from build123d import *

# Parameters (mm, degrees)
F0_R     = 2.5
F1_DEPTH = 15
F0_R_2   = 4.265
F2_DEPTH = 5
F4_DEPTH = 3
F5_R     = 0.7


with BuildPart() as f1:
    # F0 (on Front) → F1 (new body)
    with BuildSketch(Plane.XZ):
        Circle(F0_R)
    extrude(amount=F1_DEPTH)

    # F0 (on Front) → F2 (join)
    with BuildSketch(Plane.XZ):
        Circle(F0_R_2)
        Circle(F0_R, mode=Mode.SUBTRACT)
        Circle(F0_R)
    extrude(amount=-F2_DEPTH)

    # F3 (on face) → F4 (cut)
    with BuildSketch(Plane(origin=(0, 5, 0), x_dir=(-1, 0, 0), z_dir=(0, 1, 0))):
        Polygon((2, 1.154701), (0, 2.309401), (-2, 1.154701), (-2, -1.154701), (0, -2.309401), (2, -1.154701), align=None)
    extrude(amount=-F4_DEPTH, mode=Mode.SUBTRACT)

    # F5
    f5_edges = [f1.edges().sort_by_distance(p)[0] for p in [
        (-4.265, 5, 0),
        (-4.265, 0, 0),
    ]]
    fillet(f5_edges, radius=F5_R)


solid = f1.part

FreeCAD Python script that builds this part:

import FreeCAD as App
import Part
import Sketcher
from FreeCAD import Vector
Q = App.Units.Quantity


def edges_at(feature, points):
    """Names of the edges that pass closest to the given points."""
    edges = feature.Shape.Edges
    near = lambda p: min(range(len(edges)), key=lambda i: edges[i].distToShape(Part.Vertex(*p))[0])
    return sorted({f"Edge{near(p) + 1}" for p in points})

doc = App.newDocument("Part")
params = doc.addObject("Spreadsheet::Sheet", "Params")
for row, (alias, value) in enumerate([
    ("sketch1_diameter", "5 mm"),
    ("pad1_length", "15 mm"),
    ("sketch2_diameter", "8.53 mm"),
    ("pad2_length", "5 mm"),
    ("pocket1_length", "3 mm"),
    ("fillet_radius", "0.7 mm"),
], start=1):
    params.set(f"A{row}", alias)
    params.set(f"B{row}", "=" + value)
    params.setAlias(f"B{row}", alias)

body = doc.addObject("PartDesign::Body", "Body")

# Sketch on XZ plane
sketch1 = body.newObject("Sketcher::SketchObject", "Sketch")
sketch1.AttachmentSupport = (doc.getObject("XZ_Plane"), [""])
sketch1.MapMode = "FlatFace"
sketch1.addGeometry(Part.Circle(Vector(0, 0, 0), Vector(0, 0, 1), 2.5), False)
sketch1.addConstraint(Sketcher.Constraint("Coincident", 0, 3, -1, 1))
sketch1.addConstraint(Sketcher.Constraint("Diameter", 0, 5.0))
sketch1.setExpression("Constraints[1]", "Params.sketch1_diameter")
pad1 = body.newObject("PartDesign::Pad", "Pad")
pad1.Profile = sketch1
pad1.setExpression("Length", "Params.pad1_length")

# Sketch on XZ plane
sketch2 = body.newObject("Sketcher::SketchObject", "Sketch001")
sketch2.AttachmentSupport = (doc.getObject("XZ_Plane"), [""])
sketch2.MapMode = "FlatFace"
sketch2.addGeometry(Part.Circle(Vector(0, 0, 0), Vector(0, 0, 1), 4.265), False)
sketch2.addConstraint(Sketcher.Constraint("Coincident", 0, 3, -1, 1))
sketch2.addConstraint(Sketcher.Constraint("Diameter", 0, 8.53))
sketch2.setExpression("Constraints[1]", "Params.sketch2_diameter")
pad2 = body.newObject("PartDesign::Pad", "Pad001")
pad2.Profile = sketch2
pad2.setExpression("Length", "Params.pad2_length")
pad2.Reversed = True

# Sketch on XZ plane
sketch3 = body.newObject("Sketcher::SketchObject", "Sketch002")
sketch3.AttachmentSupport = (doc.getObject("XZ_Plane"), [""])
sketch3.MapMode = "FlatFace"
sketch3.AttachmentOffset = App.Placement(Vector(0, 0, -5), App.Rotation())
sketch3.addGeometry(Part.LineSegment(Vector(-2, 1.154701, 0), Vector(0, 2.309401, 0)), False)
sketch3.addGeometry(Part.LineSegment(Vector(0, 2.309401, 0), Vector(2, 1.154701, 0)), False)
sketch3.addGeometry(Part.LineSegment(Vector(2, 1.154701, 0), Vector(2, -1.154701, 0)), False)
sketch3.addGeometry(Part.LineSegment(Vector(2, -1.154701, 0), Vector(0, -2.309401, 0)), False)
sketch3.addGeometry(Part.LineSegment(Vector(0, -2.309401, 0), Vector(-2, -1.154701, 0)), False)
sketch3.addGeometry(Part.LineSegment(Vector(-2, -1.154701, 0), Vector(-2, 1.154701, 0)), False)
sketch3.addConstraint(Sketcher.Constraint("Coincident", 0, 2, 1, 1))
sketch3.addConstraint(Sketcher.Constraint("Coincident", 1, 2, 2, 1))
sketch3.addConstraint(Sketcher.Constraint("Coincident", 2, 2, 3, 1))
sketch3.addConstraint(Sketcher.Constraint("Coincident", 3, 2, 4, 1))
sketch3.addConstraint(Sketcher.Constraint("Coincident", 4, 2, 5, 1))
sketch3.addConstraint(Sketcher.Constraint("Coincident", 5, 2, 0, 1))
sketch3.addConstraint(Sketcher.Constraint("Vertical", 2))
sketch3.addConstraint(Sketcher.Constraint("Vertical", 5))
sketch3.addConstraint(Sketcher.Constraint("Symmetric", 0, 2, 3, 2, -1, 1))
sketch3.addConstraint(Sketcher.Constraint("Symmetric", 1, 2, 4, 2, -1, 1))
sketch3.addConstraint(Sketcher.Constraint("PointOnObject", 0, 2, -2))
sketch3.addConstraint(Sketcher.Constraint("Parallel", 0, 3))
sketch3.addConstraint(Sketcher.Constraint("Horizontal", 2, 2, 4, 2))
sketch3.addConstraint(Sketcher.Constraint("Angle", 0, Q("29.999988 deg")))
sketch3.addConstraint(Sketcher.Constraint("DistanceX", -1, 1, 1, 2, 2.0))
sketch3.addConstraint(Sketcher.Constraint("DistanceY", 2, 2, 2, 1, 2.309402))
pocket1 = body.newObject("PartDesign::Pocket", "Pocket")
pocket1.Profile = sketch3
pocket1.setExpression("Length", "Params.pocket1_length")
pocket1.Reversed = True
doc.recompute()

fillet = body.newObject("PartDesign::Fillet", "Fillet")
fillet.Base = (pocket1, edges_at(pocket1, [(-4.265, 5, 0), (-4.265, 0, 0)]))
fillet.setExpression("Radius", "Params.fillet_radius")

doc.recompute()
